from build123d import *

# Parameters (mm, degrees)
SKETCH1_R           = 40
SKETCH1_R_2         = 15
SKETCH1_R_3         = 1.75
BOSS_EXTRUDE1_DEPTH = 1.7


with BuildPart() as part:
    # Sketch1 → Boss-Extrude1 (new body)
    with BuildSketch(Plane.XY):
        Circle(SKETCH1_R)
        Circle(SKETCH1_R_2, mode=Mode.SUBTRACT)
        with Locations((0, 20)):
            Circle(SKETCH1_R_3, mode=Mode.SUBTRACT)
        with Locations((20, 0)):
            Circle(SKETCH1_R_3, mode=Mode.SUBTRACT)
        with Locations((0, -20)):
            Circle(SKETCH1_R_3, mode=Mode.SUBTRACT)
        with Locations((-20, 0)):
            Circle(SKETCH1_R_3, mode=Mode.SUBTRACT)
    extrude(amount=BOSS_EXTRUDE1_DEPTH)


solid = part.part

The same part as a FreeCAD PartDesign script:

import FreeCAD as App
import Part
import Sketcher

V = App.Vector
Q = App.Units.Quantity

doc = App.newDocument("Part")
body = doc.addObject("PartDesign::Body", "Body")

# Sketch on XY plane
sketch1 = body.newObject("Sketcher::SketchObject", "Sketch")
sketch1.AttachmentSupport = (doc.getObject("XY_Plane"), [""])
sketch1.MapMode = "FlatFace"
sketch1.addGeometry(Part.Circle(V(0, 0, 0), V(0, 0, 1), 40), False)
sketch1.addGeometry(Part.Circle(V(0, -20, 0), V(0, 0, 1), 1.75), False)
sketch1.addGeometry(Part.Circle(V(-20, 0, 0), V(0, 0, 1), 1.75), False)
sketch1.addGeometry(Part.Circle(V(0, 0, 0), V(0, 0, 1), 15), False)
sketch1.addGeometry(Part.Circle(V(20, 0, 0), V(0, 0, 1), 1.75), False)
sketch1.addGeometry(Part.Circle(V(0, 20, 0), V(0, 0, 1), 1.75), False)
sketch1.addConstraint(Sketcher.Constraint("Coincident", 0, 3, -1, 1))
sketch1.addConstraint(Sketcher.Constraint("Coincident", 3, 3, -1, 1))
sketch1.addConstraint(Sketcher.Constraint("Equal", 1, 2))
sketch1.addConstraint(Sketcher.Constraint("Equal", 2, 4))
sketch1.addConstraint(Sketcher.Constraint("Equal", 4, 5))
sketch1.addConstraint(Sketcher.Constraint("Symmetric", 2, 3, 4, 3, -1, 1))
sketch1.addConstraint(Sketcher.Constraint("Symmetric", 1, 3, 5, 3, -1, 1))
sketch1.addConstraint(Sketcher.Constraint("PointOnObject", 1, 3, -2))
sketch1.addConstraint(Sketcher.Constraint("PointOnObject", 2, 3, -1))
sketch1.addConstraint(Sketcher.Constraint("Diameter", 0, Q("80 mm")))
sketch1.addConstraint(Sketcher.Constraint("Diameter", 3, Q("30 mm")))
sketch1.addConstraint(Sketcher.Constraint("Diameter", 1, Q("3.5 mm")))
sketch1.addConstraint(Sketcher.Constraint("DistanceY", 1, 3, -1, 1, Q("20 mm")))
sketch1.addConstraint(Sketcher.Constraint("DistanceX", 2, 3, -1, 1, Q("20 mm")))
pad1 = body.newObject("PartDesign::Pad", "Pad")
pad1.Profile = sketch1
pad1.Length = 1.7

doc.recompute()
